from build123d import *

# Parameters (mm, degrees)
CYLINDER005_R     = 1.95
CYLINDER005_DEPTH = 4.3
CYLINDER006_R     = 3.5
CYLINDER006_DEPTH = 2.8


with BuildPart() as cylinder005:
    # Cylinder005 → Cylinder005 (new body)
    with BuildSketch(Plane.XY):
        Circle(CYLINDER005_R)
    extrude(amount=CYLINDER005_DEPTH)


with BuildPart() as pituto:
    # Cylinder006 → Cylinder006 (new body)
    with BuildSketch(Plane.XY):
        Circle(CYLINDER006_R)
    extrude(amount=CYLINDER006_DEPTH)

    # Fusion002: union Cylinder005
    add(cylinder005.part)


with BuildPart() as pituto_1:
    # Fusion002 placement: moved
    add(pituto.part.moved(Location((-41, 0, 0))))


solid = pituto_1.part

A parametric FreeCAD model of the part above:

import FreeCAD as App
import Part
import Sketcher

V = App.Vector
Q = App.Units.Quantity

doc = App.newDocument("Part")
body = doc.addObject("PartDesign::Body", "Body")

# Sketch on XY plane
sketch1 = body.newObject("Sketcher::SketchObject", "Sketch")
sketch1.AttachmentSupport = (doc.getObject("XY_Plane"), [""])
sketch1.MapMode = "FlatFace"
sketch1.addGeometry(Part.Circle(V(0, 0, 0), V(0, 0, 1), 1.9), False)
sketch1.addConstraint([
    Sketcher.Constraint("Coincident", 0, 3, -1, 1),
    Sketcher.Constraint("Diameter", 0, Q("3.9 mm")),
])
pad1 = body.newObject("PartDesign::Pad", "Pad")
pad1.Profile = sketch1
pad1.Length = 4.3
body2 = doc.addObject("PartDesign::Body", "Body001")

# Sketch on XY plane
sketch2 = body2.newObject("Sketcher::SketchObject", "Sketch001")
sketch2.AttachmentSupport = (doc.getObject("XY_Plane001"), [""])
sketch2.MapMode = "FlatFace"
sketch2.addGeometry(Part.Circle(V(0, 0, 0), V(0, 0, 1), 3.5), False)
sketch2.addConstraint([
    Sketcher.Constraint("Coincident", 0, 3, -1, 1),
    Sketcher.Constraint("Diameter", 0, Q("7 mm")),
])
pad2 = body2.newObject("PartDesign::Pad", "Pad001")
pad2.Profile = sketch2
pad2.Length = 2.8
doc.recompute()

boolean = body2.newObject("PartDesign::Boolean", "Boolean")
boolean.Type = "Fuse"
boolean.addObjects([body])
body3 = doc.addObject("PartDesign::Body", "Body002")
doc.recompute()

body2.Placement = App.Placement(V(-41, 0, 0), App.Rotation(V(0, 0, 1), 0))
boolean2 = body3.newObject("PartDesign::Boolean", "Boolean001")
boolean2.Type = "Fuse"
boolean2.addObjects([body2])

doc.recompute()
